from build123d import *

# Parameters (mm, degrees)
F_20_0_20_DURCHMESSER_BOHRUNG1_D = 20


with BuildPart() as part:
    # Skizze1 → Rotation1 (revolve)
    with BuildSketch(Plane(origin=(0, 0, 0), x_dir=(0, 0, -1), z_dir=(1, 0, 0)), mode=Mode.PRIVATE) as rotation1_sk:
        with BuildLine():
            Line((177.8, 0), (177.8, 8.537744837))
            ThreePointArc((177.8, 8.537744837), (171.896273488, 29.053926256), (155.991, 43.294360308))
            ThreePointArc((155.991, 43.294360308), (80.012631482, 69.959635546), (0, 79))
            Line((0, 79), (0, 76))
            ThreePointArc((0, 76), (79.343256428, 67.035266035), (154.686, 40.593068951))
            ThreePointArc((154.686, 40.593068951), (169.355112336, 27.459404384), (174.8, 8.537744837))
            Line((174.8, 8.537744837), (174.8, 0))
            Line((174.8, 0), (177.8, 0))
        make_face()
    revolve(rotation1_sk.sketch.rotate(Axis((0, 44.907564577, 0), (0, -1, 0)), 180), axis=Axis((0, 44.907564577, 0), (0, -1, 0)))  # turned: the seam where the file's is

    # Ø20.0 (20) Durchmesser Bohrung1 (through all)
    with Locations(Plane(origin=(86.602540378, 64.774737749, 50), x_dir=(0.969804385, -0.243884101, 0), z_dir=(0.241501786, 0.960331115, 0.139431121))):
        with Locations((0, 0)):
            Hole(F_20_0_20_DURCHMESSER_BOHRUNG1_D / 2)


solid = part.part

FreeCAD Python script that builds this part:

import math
import FreeCAD as App
import Part
import Sketcher
from FreeCAD import Vector

doc = App.newDocument("Part")
body = doc.addObject("PartDesign::Body", "Body")

# Sketch on YZ plane
sketch1 = doc.addObject("Sketcher::SketchObject", "Sketch")
body.addObject(sketch1)
sketch1.AttachmentSupport = (doc.YZ_Plane, [""])
sketch1.MapMode = "FlatFace"
sketch1.addGeometry([
    Part.LineSegment(Vector(0, -177.8, 0), Vector(8.5, -177.8, 0)),  # 0
    Part.ArcOfCircle(Part.Circle(Vector(8.5, -139.2, 0), Vector(0, 0, 1), 38.6), math.radians(-90), math.radians(-26)),  # 1
    Part.ArcOfCircle(Part.Circle(Vector(-279.6, 0, 0), Vector(0, 0, 1), 358.6), math.radians(-26), math.radians(0)),  # 2
    Part.LineSegment(Vector(79, 0, 0), Vector(76, 0, 0)),  # 3
    Part.ArcOfCircle(Part.Circle(Vector(-279.6, 0, 0), Vector(0, 0, 1), 355.6), math.radians(-26), math.radians(0)),  # 4
    Part.ArcOfCircle(Part.Circle(Vector(8.5, -139.2, 0), Vector(0, 0, 1), 35.6), math.radians(-90), math.radians(-26)),  # 5
    Part.LineSegment(Vector(8.5, -174.8, 0), Vector(0, -174.8, 0)),  # 6
    Part.LineSegment(Vector(0, -174.8, 0), Vector(0, -177.8, 0)),  # 7
], False)
sketch1.addConstraint([
    Sketcher.Constraint("Tangent", 0, 2, 1, 1),
    Sketcher.Constraint("Tangent", 1, 2, 2, 1),
    Sketcher.Constraint("Coincident", 2, 2, 3, 1),
    Sketcher.Constraint("Coincident", 3, 2, 4, 2),
    Sketcher.Constraint("Tangent", 4, 1, 5, 2),
    Sketcher.Constraint("Tangent", 5, 1, 6, 1),
    Sketcher.Constraint("Coincident", 6, 2, 7, 1),
    Sketcher.Constraint("Coincident", 7, 2, 0, 1),
    Sketcher.Constraint("Horizontal", 0),
    Sketcher.Constraint("Horizontal", 3),
    Sketcher.Constraint("Horizontal", 6),
    Sketcher.Constraint("Vertical", 7),
    Sketcher.Constraint("Coincident", 4, 3, 2, 3),
    Sketcher.Constraint("Coincident", 5, 3, 1, 3),
    Sketcher.Constraint("PointOnObject", 2, 3, -1),
    Sketcher.Constraint("PointOnObject", 3, 2, -1),
    Sketcher.Constraint("PointOnObject", 6, 2, -2),
    Sketcher.Constraint("Radius", 1, 38.6),
    Sketcher.Constraint("Radius", 2, 358.6),
    Sketcher.Constraint("Radius", 4, 355.6),
    Sketcher.Constraint("DistanceX", -1, 1, 2, 2, 79.0),
    Sketcher.Constraint("DistanceY", 1, 3, -1, 1, 139.2),
])
revolution = doc.addObject("PartDesign::Revolution", "Revolution")
body.addObject(revolution)
revolution.Profile = sketch1
revolution.ReferenceAxis = (sketch1, ["H_Axis"])
revolution.Angle = 360

# Sketch on an angled plane
sketch2 = doc.addObject("Sketcher::SketchObject", "Sketch001")
body.addObject(sketch2)
sketch2.Placement = App.Placement(Vector(21.757239, 86.517594, 12.561548), App.Rotation(Vector(0.969804385, -0.243884101, 0), Vector(0.034005034, 0.135220913, -0.990231772), Vector(0.241501786, 0.960331115, 0.139431121), "ZXY"))
sketch2.addGeometry(Part.Circle(Vector(68, -38, 0), Vector(0, 0, 1), 10), False)
sketch2.addConstraint([
    Sketcher.Constraint("Diameter", 0, 20.0),
    Sketcher.Constraint("DistanceX", -1, 1, 0, 3, 68.189995),
    Sketcher.Constraint("DistanceY", 0, 3, -1, 1, 37.807767),
])
doc.recompute()
hole = doc.addObject("PartDesign::Hole", "Hole")
body.addObject(hole)
hole.Profile = sketch2
hole.ThreadType = "None"
hole.Diameter = 20
hole.DepthType = "ThroughAll"

doc.recompute()
